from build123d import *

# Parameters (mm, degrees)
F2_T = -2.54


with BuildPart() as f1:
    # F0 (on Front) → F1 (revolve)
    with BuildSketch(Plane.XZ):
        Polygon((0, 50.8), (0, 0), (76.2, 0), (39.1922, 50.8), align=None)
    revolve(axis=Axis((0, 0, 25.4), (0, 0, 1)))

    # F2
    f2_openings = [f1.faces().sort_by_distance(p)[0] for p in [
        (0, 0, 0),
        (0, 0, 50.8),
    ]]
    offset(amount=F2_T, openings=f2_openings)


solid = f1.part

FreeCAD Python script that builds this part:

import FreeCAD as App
import Part
import Sketcher

V = App.Vector
Q = App.Units.Quantity


def faces_at(feature, points):
    """Names of the faces that lie closest to the given points."""
    faces = feature.Shape.Faces
    near = lambda p: min(range(len(faces)), key=lambda i: faces[i].distToShape(Part.Vertex(*p))[0])
    return sorted({f"Face{near(p) + 1}" for p in points})


def add_polygon(sketch, points):
    """Adds a closed chain of lines whose ends are joined by coincident constraints."""
    first, n = sketch.GeometryCount, len(points)
    for a, b in zip(points, points[1:] + points[:1]):
        sketch.addGeometry(Part.LineSegment(App.Vector(*a, 0), App.Vector(*b, 0)), False)
    for i in range(n):
        sketch.addConstraint(Sketcher.Constraint("Coincident", first + i, 2, first + (i + 1) % n, 1))

doc = App.newDocument("Part")
body = doc.addObject("PartDesign::Body", "Body")

# Sketch on XZ plane
sketch1 = doc.addObject("Sketcher::SketchObject", "Sketch")
body.addObject(sketch1)
sketch1.AttachmentSupport = (doc.XZ_Plane, [""])
sketch1.MapMode = "FlatFace"
add_polygon(sketch1, [(0, 51), (0, 0), (76, 0), (39, 51)])  # lines 0-3
sketch1.addConstraint([
    Sketcher.Constraint("Vertical", 0),
    Sketcher.Constraint("Horizontal", 1),
    Sketcher.Constraint("Horizontal", 3),
    Sketcher.Constraint("Coincident", 0, 2, -1, 1),
    Sketcher.Constraint("DistanceX", 1, 1, 1, 2, Q("3 in")),
    Sketcher.Constraint("DistanceY", 0, 2, 0, 1, Q("2 in")),
    Sketcher.Constraint("DistanceX", 3, 2, 3, 1, Q("1.543 in")),
])
revolution = doc.addObject("PartDesign::Revolution", "Revolution")
body.addObject(revolution)
revolution.Profile = sketch1
revolution.ReferenceAxis = (sketch1, ["V_Axis"])
revolution.Angle = 360
doc.recompute()

thickness = doc.addObject("PartDesign::Thickness", "Thickness")
body.addObject(thickness)
thickness.Base = (revolution, faces_at(revolution, [(0, 0, 0), (0, 0, 50.8)]))
thickness.Value = Q("0.1 in")
thickness.Reversed = True
thickness.Join = "Arc"

doc.recompute()
